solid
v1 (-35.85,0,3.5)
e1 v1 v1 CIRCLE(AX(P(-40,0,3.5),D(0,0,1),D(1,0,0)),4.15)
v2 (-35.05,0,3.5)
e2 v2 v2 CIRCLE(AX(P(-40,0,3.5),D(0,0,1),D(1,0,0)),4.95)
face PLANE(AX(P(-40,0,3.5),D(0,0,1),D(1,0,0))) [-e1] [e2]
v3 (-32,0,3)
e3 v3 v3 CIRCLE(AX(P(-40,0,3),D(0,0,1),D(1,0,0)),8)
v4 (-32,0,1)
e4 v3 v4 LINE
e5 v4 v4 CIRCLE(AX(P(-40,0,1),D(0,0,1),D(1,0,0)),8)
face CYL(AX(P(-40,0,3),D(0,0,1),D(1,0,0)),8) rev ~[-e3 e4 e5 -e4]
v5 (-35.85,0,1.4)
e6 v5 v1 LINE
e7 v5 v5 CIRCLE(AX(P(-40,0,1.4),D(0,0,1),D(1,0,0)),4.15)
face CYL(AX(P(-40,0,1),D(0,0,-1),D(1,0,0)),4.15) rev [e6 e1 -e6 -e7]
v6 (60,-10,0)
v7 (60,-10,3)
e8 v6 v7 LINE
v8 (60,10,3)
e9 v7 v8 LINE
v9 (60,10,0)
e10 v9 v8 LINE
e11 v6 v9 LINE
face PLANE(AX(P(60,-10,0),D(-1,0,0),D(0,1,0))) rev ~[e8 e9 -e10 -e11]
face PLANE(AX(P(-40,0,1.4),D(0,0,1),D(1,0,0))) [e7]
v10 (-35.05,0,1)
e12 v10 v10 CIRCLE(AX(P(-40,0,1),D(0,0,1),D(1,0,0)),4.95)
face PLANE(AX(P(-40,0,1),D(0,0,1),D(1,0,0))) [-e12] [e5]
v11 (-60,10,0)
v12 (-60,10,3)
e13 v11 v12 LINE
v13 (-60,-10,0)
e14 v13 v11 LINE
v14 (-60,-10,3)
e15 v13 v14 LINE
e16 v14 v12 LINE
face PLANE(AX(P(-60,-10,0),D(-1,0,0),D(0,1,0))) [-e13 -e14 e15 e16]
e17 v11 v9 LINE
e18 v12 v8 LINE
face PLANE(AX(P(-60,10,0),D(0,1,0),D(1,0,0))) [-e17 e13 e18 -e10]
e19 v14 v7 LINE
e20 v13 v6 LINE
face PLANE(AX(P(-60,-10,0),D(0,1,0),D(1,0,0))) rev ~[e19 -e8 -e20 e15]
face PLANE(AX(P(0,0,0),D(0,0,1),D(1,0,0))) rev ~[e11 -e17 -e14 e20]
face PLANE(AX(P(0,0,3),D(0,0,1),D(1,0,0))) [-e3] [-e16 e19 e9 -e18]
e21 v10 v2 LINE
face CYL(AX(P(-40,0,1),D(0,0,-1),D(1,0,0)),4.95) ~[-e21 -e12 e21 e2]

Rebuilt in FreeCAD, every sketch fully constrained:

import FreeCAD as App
import Part
import Sketcher

V = App.Vector
Q = App.Units.Quantity


def add_polygon(sketch, points):
    """Adds a closed chain of lines whose ends are joined by coincident constraints."""
    first, n = sketch.GeometryCount, len(points)
    for a, b in zip(points, points[1:] + points[:1]):
        sketch.addGeometry(Part.LineSegment(App.Vector(*a, 0), App.Vector(*b, 0)), False)
    for i in range(n):
        sketch.addConstraint(Sketcher.Constraint("Coincident", first + i, 2, first + (i + 1) % n, 1))

doc = App.newDocument("Part")
body = doc.addObject("PartDesign::Body", "Body")

# Sketch on XY plane
sketch1 = body.newObject("Sketcher::SketchObject", "Sketch")
sketch1.AttachmentSupport = (doc.getObject("XY_Plane"), [""])
sketch1.MapMode = "FlatFace"
add_polygon(sketch1, [(-60, 10), (-60, -10), (60, -10), (60, 10)])  # lines 0-3
sketch1.addConstraint(Sketcher.Constraint("Vertical", 0))
sketch1.addConstraint(Sketcher.Constraint("Horizontal", 1))
sketch1.addConstraint(Sketcher.Constraint("Vertical", 2))
sketch1.addConstraint(Sketcher.Constraint("Horizontal", 3))
sketch1.addConstraint(Sketcher.Constraint("Symmetric", 0, 2, 2, 2, -1, 1))
sketch1.addConstraint(Sketcher.Constraint("DistanceX", 1, 1, 1, 2, Q("120 mm")))
sketch1.addConstraint(Sketcher.Constraint("DistanceY", 0, 2, 0, 1, Q("20 mm")))
pad1 = body.newObject("PartDesign::Pad", "Pad")
pad1.Profile = sketch1
pad1.Length = 3

# Sketch on XY plane
sketch2 = body.newObject("Sketcher::SketchObject", "Sketch001")
sketch2.AttachmentSupport = (doc.getObject("XY_Plane"), [""])
sketch2.MapMode = "FlatFace"
sketch2.AttachmentOffset = App.Placement(V(0, 0, 3), App.Rotation())
sketch2.addGeometry(Part.Circle(V(-40, 0, 0), V(0, 0, 1), 8), False)
sketch2.addConstraint(Sketcher.Constraint("PointOnObject", 0, 3, -1))
sketch2.addConstraint(Sketcher.Constraint("Diameter", 0, Q("16 mm")))
sketch2.addConstraint(Sketcher.Constraint("DistanceX", 0, 3, -1, 1, Q("40 mm")))
pocket1 = body.newObject("PartDesign::Pocket", "Pocket")
pocket1.Profile = sketch2
pocket1.Length = 2

# Sketch on XY plane
sketch3 = body.newObject("Sketcher::SketchObject", "Sketch002")
sketch3.AttachmentSupport = (doc.getObject("XY_Plane"), [""])
sketch3.MapMode = "FlatFace"
sketch3.AttachmentOffset = App.Placement(V(0, 0, 1), App.Rotation())
sketch3.addGeometry(Part.Circle(V(-40, 0, 0), V(0, 0, 1), 4.95), False)
sketch3.addGeometry(Part.Circle(V(-40, 0, 0), V(0, 0, 1), 4.15), False)
sketch3.addConstraint(Sketcher.Constraint("Coincident", 1, 3, 0, 3))
sketch3.addConstraint(Sketcher.Constraint("PointOnObject", 0, 3, -1))
sketch3.addConstraint(Sketcher.Constraint("Diameter", 0, Q("9.9 mm")))
sketch3.addConstraint(Sketcher.Constraint("Diameter", 1, Q("8.3 mm")))
sketch3.addConstraint(Sketcher.Constraint("DistanceX", 0, 3, -1, 1, Q("40 mm")))
pad2 = body.newObject("PartDesign::Pad", "Pad001")
pad2.Profile = sketch3
pad2.Length = 2.5

# Sketch on XY plane
sketch4 = body.newObject("Sketcher::SketchObject", "Sketch003")
sketch4.AttachmentSupport = (doc.getObject("XY_Plane"), [""])
sketch4.MapMode = "FlatFace"
sketch4.AttachmentOffset = App.Placement(V(0, 0, 1), App.Rotation())
sketch4.addGeometry(Part.Circle(V(-40, 0, 0), V(0, 0, 1), 4.15), False)
sketch4.addConstraint(Sketcher.Constraint("PointOnObject", 0, 3, -1))
sketch4.addConstraint(Sketcher.Constraint("Diameter", 0, Q("8.3 mm")))
sketch4.addConstraint(Sketcher.Constraint("DistanceX", 0, 3, -1, 1, Q("40 mm")))
pad3 = body.newObject("PartDesign::Pad", "Pad002")
pad3.Profile = sketch4
pad3.Length = 0.4

doc.recompute()
